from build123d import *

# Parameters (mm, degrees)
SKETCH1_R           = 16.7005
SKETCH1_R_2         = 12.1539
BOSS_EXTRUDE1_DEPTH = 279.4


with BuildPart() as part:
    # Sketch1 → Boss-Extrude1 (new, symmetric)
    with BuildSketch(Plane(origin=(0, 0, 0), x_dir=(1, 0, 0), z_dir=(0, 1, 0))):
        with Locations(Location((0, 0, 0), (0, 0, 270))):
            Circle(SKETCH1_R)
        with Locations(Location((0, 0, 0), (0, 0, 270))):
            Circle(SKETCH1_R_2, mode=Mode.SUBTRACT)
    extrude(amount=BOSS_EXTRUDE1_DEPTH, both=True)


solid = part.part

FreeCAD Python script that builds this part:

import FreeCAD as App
import Part
import Sketcher
from FreeCAD import Vector
Q = App.Units.Quantity

doc = App.newDocument("Part")
params = doc.addObject("Spreadsheet::Sheet", "Params")
for row, (alias, value) in enumerate([
    ("sketch1_diameter", "1.315 in"),
    ("sketch1_diameter2", "0.957 in"),
    ("pad1_length", "22 in"),
], start=1):
    params.set(f"A{row}", alias)
    params.set(f"B{row}", "=" + value)
    params.setAlias(f"B{row}", alias)

body = doc.addObject("PartDesign::Body", "Body")

# Sketch on XZ plane
sketch1 = body.newObject("Sketcher::SketchObject", "Sketch")
sketch1.AttachmentSupport = (doc.getObject("XZ_Plane"), [""])
sketch1.MapMode = "FlatFace"
sketch1.addGeometry(Part.Circle(Vector(0, 0, 0), Vector(0, 0, 1), 17), False)
sketch1.addGeometry(Part.Circle(Vector(0, 0, 0), Vector(0, 0, 1), 12), False)
sketch1.addConstraint(Sketcher.Constraint("Coincident", 0, 3, -1, 1))
sketch1.addConstraint(Sketcher.Constraint("Coincident", 1, 3, -1, 1))
sketch1.addConstraint(Sketcher.Constraint("Diameter", 0, Q("1.315 in")))
sketch1.addConstraint(Sketcher.Constraint("Diameter", 1, Q("0.957 in")))
sketch1.setExpression("Constraints[2]", "Params.sketch1_diameter")
sketch1.setExpression("Constraints[3]", "Params.sketch1_diameter2")
pad1 = body.newObject("PartDesign::Pad", "Pad")
pad1.Profile = sketch1
pad1.setExpression("Length", "Params.pad1_length")
pad1.Midplane = True

doc.recompute()
